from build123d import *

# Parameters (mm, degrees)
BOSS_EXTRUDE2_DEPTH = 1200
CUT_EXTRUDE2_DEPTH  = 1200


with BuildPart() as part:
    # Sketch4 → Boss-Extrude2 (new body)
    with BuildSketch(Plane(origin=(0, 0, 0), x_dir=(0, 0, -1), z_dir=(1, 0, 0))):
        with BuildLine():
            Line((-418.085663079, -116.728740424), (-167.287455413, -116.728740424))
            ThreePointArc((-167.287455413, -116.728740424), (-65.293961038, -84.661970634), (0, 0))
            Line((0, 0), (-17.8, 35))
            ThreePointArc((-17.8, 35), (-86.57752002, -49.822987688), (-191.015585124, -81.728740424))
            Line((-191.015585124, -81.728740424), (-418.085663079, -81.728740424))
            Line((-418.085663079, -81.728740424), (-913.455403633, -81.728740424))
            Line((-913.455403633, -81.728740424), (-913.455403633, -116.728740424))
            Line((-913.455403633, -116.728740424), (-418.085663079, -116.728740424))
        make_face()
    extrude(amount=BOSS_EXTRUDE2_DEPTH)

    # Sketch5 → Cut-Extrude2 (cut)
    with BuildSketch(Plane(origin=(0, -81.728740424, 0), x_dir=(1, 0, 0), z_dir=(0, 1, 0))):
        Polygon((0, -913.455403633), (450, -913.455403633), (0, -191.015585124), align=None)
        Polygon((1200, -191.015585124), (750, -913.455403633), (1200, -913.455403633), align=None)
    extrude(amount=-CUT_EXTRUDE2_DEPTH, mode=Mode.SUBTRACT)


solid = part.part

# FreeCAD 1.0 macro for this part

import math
import FreeCAD as App
import Part
import Sketcher

V = App.Vector
Q = App.Units.Quantity


def add_polygon(sketch, points):
    """Adds a closed chain of lines whose ends are joined by coincident constraints."""
    first, n = sketch.GeometryCount, len(points)
    for a, b in zip(points, points[1:] + points[:1]):
        sketch.addGeometry(Part.LineSegment(App.Vector(*a, 0), App.Vector(*b, 0)), False)
    for i in range(n):
        sketch.addConstraint(Sketcher.Constraint("Coincident", first + i, 2, first + (i + 1) % n, 1))

doc = App.newDocument("Part")
params = doc.addObject("Spreadsheet::Sheet", "Params")
for row, (alias, value) in enumerate([
    ("sketch1_width", "35 mm"),
    ("pad1_length", "1200 mm"),
    ("sketch2_width", "450 mm"),
    ("pocket1_length", "1200 mm"),
], start=1):
    params.set(f"A{row}", alias)
    params.set(f"B{row}", "=" + value)
    params.setAlias(f"B{row}", alias)

body = doc.addObject("PartDesign::Body", "Body")

sketch1 = doc.addObject("Sketcher::SketchObject", "Sketch")
body.addObject(sketch1)
sketch1.AttachmentSupport = (doc.YZ_Plane, [""])
sketch1.MapMode = "FlatFace"
sketch1.addGeometry(Part.ArcOfCircle(Part.Circle(V(62, 167, 0), V(0, 0, 1), 178), math.radians(-180), math.radians(-110)), False)
sketch1.addGeometry(Part.LineSegment(V(0, 0, 0), V(35, 18, 0)), False)
sketch1.addGeometry(Part.ArcOfCircle(Part.Circle(V(105, 191, 0), V(0, 0, 1), 187), math.radians(180), math.radians(248)), False)
sketch1.addGeometry(Part.LineSegment(V(-82, 191, 0), V(-82, 913, 0)), False)
sketch1.addGeometry(Part.LineSegment(V(-82, 913, 0), V(-117, 913, 0)), False)
sketch1.addGeometry(Part.LineSegment(V(-117, 913, 0), V(-117, 167, 0)), False)
sketch1.addConstraint(Sketcher.Constraint("Coincident", 0, 2, 1, 1))
sketch1.addConstraint(Sketcher.Constraint("Coincident", 1, 2, 2, 2))
sketch1.addConstraint(Sketcher.Constraint("Tangent", 2, 1, 3, 1))
sketch1.addConstraint(Sketcher.Constraint("Coincident", 3, 2, 4, 1))
sketch1.addConstraint(Sketcher.Constraint("Coincident", 4, 2, 5, 1))
sketch1.addConstraint(Sketcher.Constraint("Tangent", 5, 2, 0, 1))
sketch1.addConstraint(Sketcher.Constraint("Vertical", 3))
sketch1.addConstraint(Sketcher.Constraint("Horizontal", 4))
sketch1.addConstraint(Sketcher.Constraint("Vertical", 5))
sketch1.addConstraint(Sketcher.Constraint("Coincident", 0, 2, -1, 1))
sketch1.addConstraint(Sketcher.Constraint("DistanceX", 4, 2, 4, 1, Q("35 mm")))
sketch1.addConstraint(Sketcher.Constraint("DistanceX", -1, 1, 1, 2, Q("35 mm")))
sketch1.addConstraint(Sketcher.Constraint("DistanceY", -1, 1, 1, 2, Q("17.8 mm")))
sketch1.addConstraint(Sketcher.Constraint("Radius", 0, Q("178.236703 mm")))
sketch1.addConstraint(Sketcher.Constraint("Radius", 2, Q("186.883014 mm")))
sketch1.addConstraint(Sketcher.Constraint("DistanceY", 3, 1, 3, 2, Q("722.439819 mm")))
sketch1.addConstraint(Sketcher.Constraint("DistanceY", 5, 2, 5, 1, Q("746.167948 mm")))
sketch1.setExpression("Constraints[10]", "Params.sketch1_width")
pad1 = doc.addObject("PartDesign::Pad", "Pad")
body.addObject(pad1)
pad1.Profile = sketch1
pad1.setExpression("Length", "Params.pad1_length")

sketch2 = doc.addObject("Sketcher::SketchObject", "Sketch001")
body.addObject(sketch2)
sketch2.AttachmentSupport = (doc.XZ_Plane, [""])
sketch2.MapMode = "FlatFace"
sketch2.AttachmentOffset = App.Placement(V(0, 0, 81.72874), App.Rotation())
add_polygon(sketch2, [(0, 913), (450, 913), (0, 191)])
add_polygon(sketch2, [(1200, 191), (750, 913), (1200, 913)])
sketch2.addConstraint(Sketcher.Constraint("Horizontal", 0))
sketch2.addConstraint(Sketcher.Constraint("Vertical", 2))
sketch2.addConstraint(Sketcher.Constraint("Horizontal", 4))
sketch2.addConstraint(Sketcher.Constraint("Vertical", 5))
sketch2.addConstraint(Sketcher.Constraint("PointOnObject", 1, 2, -2))
sketch2.addConstraint(Sketcher.Constraint("Horizontal", 2, 2, 3, 2))
sketch2.addConstraint(Sketcher.Constraint("Horizontal", 1, 2, 5, 2))
sketch2.addConstraint(Sketcher.Constraint("Equal", 0, 4))
sketch2.addConstraint(Sketcher.Constraint("DistanceX", 0, 1, 0, 2, Q("450 mm")))
sketch2.addConstraint(Sketcher.Constraint("DistanceX", -1, 1, 3, 2, Q("750 mm")))
sketch2.addConstraint(Sketcher.Constraint("DistanceY", 2, 1, 2, 2, Q("722.439819 mm")))
sketch2.addConstraint(Sketcher.Constraint("DistanceY", -1, 1, 0, 2, Q("913.455404 mm")))
sketch2.setExpression("Constraints[14]", "Params.sketch2_width")
pocket1 = doc.addObject("PartDesign::Pocket", "Pocket")
body.addObject(pocket1)
pocket1.Profile = sketch2
pocket1.setExpression("Length", "Params.pocket1_length")
pocket1.Reversed = True

doc.recompute()
